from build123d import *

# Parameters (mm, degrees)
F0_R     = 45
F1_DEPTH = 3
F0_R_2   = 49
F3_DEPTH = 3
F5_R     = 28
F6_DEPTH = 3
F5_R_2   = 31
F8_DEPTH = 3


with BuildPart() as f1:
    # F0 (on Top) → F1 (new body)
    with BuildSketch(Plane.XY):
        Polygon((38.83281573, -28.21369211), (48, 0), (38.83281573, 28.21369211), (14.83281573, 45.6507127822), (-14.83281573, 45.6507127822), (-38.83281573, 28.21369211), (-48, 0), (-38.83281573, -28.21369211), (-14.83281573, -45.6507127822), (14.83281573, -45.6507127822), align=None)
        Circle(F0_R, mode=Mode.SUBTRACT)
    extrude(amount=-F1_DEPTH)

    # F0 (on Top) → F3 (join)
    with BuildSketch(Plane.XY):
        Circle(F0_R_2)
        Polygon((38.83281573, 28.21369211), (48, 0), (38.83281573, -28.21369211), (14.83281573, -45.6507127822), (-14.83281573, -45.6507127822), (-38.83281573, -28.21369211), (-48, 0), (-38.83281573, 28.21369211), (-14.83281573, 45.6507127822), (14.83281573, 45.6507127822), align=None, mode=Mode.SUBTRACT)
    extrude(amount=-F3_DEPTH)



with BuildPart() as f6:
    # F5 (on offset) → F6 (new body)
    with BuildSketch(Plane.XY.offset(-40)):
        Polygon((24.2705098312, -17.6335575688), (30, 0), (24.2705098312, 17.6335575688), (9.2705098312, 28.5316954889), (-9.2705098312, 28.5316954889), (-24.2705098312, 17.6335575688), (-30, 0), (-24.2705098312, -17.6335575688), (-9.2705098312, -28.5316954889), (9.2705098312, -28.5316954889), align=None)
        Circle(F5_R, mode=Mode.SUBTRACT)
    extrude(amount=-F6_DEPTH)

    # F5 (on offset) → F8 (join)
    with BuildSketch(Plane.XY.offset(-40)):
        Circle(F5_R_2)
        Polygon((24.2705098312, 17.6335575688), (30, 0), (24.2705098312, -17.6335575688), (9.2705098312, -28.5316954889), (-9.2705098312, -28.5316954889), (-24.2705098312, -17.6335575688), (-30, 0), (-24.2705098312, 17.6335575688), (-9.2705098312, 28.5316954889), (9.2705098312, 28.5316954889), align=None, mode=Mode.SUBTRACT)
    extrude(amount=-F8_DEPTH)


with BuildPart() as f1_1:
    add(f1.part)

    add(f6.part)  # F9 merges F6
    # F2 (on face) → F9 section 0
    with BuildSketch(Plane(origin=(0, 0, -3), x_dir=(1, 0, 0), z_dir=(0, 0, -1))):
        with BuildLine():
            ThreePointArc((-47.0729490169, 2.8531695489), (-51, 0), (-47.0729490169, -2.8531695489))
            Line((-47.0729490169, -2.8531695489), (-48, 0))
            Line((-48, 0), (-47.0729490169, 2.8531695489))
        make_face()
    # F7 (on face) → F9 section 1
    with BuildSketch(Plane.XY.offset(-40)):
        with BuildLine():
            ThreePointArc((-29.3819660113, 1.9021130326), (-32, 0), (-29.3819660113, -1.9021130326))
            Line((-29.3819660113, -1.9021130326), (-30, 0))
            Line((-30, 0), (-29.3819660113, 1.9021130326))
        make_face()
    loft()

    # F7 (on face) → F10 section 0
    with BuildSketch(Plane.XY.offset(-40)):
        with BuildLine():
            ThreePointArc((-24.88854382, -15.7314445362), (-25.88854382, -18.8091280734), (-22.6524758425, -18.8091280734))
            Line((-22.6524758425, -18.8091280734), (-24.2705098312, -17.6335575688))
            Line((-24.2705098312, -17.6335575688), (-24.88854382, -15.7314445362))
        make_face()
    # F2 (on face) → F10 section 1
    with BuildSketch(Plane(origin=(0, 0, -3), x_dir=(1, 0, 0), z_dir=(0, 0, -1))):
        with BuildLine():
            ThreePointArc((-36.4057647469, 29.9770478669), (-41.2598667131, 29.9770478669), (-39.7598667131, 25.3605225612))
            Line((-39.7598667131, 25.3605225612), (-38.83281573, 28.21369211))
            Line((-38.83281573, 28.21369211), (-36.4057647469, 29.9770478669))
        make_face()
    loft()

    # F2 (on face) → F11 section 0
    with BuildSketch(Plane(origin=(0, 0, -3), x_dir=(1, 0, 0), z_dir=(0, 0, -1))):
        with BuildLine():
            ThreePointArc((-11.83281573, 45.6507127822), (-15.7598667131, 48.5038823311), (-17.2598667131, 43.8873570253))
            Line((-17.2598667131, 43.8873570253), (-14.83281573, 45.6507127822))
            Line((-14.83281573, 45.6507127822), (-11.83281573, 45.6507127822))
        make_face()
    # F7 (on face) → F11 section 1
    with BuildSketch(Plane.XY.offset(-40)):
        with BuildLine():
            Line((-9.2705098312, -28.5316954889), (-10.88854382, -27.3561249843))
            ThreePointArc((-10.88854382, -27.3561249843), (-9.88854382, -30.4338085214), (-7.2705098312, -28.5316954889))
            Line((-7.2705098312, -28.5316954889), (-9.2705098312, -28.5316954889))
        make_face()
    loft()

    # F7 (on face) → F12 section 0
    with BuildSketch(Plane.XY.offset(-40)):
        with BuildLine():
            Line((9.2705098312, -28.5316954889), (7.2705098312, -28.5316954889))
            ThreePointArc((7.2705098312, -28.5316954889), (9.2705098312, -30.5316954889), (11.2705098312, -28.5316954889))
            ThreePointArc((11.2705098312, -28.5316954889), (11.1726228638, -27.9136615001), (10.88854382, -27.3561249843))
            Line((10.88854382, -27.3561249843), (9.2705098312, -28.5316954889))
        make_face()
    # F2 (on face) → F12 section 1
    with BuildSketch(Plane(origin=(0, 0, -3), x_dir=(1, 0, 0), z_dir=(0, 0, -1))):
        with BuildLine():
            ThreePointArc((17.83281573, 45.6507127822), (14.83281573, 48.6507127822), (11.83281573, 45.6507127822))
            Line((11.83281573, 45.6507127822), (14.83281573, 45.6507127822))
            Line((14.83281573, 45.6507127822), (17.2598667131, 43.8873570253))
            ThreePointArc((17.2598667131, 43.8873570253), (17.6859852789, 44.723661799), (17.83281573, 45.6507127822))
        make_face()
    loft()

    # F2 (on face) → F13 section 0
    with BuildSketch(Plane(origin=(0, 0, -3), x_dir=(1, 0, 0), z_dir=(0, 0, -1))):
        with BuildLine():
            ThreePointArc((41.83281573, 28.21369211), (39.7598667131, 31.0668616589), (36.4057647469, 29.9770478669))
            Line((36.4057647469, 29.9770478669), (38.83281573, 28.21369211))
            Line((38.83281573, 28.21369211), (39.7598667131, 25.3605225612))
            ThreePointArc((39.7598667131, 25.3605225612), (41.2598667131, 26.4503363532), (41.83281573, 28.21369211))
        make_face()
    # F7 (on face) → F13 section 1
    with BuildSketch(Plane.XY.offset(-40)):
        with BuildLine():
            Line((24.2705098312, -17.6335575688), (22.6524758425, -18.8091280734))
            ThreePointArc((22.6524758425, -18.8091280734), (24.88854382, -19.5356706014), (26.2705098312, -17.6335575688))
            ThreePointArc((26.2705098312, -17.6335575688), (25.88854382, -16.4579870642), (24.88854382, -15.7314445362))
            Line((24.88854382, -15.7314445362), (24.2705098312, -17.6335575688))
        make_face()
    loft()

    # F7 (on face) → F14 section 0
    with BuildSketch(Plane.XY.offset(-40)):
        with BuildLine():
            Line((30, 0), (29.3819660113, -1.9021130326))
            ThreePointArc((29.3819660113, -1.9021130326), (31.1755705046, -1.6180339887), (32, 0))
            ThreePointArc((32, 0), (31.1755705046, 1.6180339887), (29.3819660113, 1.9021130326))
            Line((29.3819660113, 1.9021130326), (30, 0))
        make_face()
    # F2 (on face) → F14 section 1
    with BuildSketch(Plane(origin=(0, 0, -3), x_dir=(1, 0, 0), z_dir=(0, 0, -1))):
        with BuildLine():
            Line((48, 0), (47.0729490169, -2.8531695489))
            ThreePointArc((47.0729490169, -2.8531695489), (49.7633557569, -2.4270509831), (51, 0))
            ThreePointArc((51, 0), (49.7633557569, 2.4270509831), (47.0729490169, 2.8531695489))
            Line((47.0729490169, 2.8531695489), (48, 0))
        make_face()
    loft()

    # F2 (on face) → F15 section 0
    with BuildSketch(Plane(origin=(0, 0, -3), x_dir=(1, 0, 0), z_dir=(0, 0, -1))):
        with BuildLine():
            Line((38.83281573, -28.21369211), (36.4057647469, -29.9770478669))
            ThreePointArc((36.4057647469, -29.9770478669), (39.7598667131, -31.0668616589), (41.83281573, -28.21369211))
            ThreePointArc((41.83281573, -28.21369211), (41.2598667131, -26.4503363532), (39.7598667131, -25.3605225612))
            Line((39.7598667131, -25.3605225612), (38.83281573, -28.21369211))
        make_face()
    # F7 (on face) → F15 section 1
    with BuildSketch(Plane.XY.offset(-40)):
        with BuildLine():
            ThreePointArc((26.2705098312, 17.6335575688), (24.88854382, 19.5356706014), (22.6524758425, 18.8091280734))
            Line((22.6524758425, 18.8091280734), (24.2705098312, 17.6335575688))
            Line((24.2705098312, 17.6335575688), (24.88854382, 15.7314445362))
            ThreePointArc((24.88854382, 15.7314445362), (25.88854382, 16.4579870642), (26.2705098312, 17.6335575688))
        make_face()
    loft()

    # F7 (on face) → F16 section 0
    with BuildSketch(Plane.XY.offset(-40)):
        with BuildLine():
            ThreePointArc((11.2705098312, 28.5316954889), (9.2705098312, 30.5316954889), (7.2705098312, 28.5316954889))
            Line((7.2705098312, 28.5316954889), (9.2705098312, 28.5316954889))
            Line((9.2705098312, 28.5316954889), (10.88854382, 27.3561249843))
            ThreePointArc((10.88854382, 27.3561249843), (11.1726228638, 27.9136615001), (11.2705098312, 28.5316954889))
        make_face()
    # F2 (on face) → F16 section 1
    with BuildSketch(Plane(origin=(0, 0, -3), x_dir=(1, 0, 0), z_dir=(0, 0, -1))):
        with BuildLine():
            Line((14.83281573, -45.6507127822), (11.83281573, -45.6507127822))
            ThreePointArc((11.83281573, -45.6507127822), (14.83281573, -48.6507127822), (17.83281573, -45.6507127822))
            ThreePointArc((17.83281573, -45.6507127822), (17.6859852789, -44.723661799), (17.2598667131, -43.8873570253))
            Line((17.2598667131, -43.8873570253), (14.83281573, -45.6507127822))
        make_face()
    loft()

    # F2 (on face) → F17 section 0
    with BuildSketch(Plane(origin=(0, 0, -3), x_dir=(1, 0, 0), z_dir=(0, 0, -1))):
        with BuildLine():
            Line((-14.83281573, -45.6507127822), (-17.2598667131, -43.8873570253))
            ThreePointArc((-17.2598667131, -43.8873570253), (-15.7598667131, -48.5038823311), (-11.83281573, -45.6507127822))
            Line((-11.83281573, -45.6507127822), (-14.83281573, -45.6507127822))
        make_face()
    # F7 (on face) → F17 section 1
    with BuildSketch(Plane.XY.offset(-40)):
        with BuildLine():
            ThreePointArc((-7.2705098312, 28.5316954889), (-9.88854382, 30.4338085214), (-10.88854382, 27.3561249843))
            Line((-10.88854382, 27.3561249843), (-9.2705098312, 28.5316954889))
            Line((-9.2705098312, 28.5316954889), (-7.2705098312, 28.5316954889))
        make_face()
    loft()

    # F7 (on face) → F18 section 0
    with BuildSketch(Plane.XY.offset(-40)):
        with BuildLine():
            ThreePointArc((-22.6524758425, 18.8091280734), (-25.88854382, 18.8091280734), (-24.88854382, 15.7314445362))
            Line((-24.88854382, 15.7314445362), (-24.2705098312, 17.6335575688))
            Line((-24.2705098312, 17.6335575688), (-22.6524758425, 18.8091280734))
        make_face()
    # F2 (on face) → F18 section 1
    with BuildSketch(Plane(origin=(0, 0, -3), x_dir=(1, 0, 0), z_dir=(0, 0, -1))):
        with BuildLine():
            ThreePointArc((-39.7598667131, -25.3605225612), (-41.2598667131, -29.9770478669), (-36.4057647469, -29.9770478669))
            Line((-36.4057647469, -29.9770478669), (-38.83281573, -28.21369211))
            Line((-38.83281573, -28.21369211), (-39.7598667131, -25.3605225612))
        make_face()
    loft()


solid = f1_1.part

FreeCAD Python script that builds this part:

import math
import FreeCAD as App
import Part
import Sketcher

V = App.Vector
Q = App.Units.Quantity

doc = App.newDocument("Part")
body = doc.addObject("PartDesign::Body", "Body")

# Sketch on XY plane
sketch1 = doc.addObject("Sketcher::SketchObject", "Sketch")
body.addObject(sketch1)
sketch1.AttachmentSupport = (doc.XY_Plane, [""])
sketch1.MapMode = "FlatFace"
sketch1.addGeometry([
    Part.LineSegment(V(39, -28, 0), V(48, 0, 0)),  # 0
    Part.LineSegment(V(48, 0, 0), V(39, 28, 0)),  # 1
    Part.LineSegment(V(39, 28, 0), V(15, 46, 0)),  # 2
    Part.LineSegment(V(15, 46, 0), V(-15, 46, 0)),  # 3
    Part.LineSegment(V(-15, 46, 0), V(-39, 28, 0)),  # 4
    Part.LineSegment(V(-39, 28, 0), V(-48, 0, 0)),  # 5
    Part.LineSegment(V(-48, 0, 0), V(-39, -28, 0)),  # 6
    Part.LineSegment(V(-39, -28, 0), V(-15, -46, 0)),  # 7
    Part.LineSegment(V(-15, -46, 0), V(15, -46, 0)),  # 8
    Part.LineSegment(V(15, -46, 0), V(39, -28, 0)),  # 9
    Part.Circle(V(0, 0, 0), V(0, 0, 1), 45),  # 10
], False)
sketch1.addConstraint([
    Sketcher.Constraint("Coincident", 0, 2, 1, 1),
    Sketcher.Constraint("Coincident", 1, 2, 2, 1),
    Sketcher.Constraint("Coincident", 2, 2, 3, 1),
    Sketcher.Constraint("Coincident", 3, 2, 4, 1),
    Sketcher.Constraint("Coincident", 4, 2, 5, 1),
    Sketcher.Constraint("Coincident", 5, 2, 6, 1),
    Sketcher.Constraint("Coincident", 6, 2, 7, 1),
    Sketcher.Constraint("Coincident", 7, 2, 8, 1),
    Sketcher.Constraint("Coincident", 8, 2, 9, 1),
    Sketcher.Constraint("Coincident", 9, 2, 0, 1),
    Sketcher.Constraint("Horizontal", 3),
    Sketcher.Constraint("Horizontal", 8),
    Sketcher.Constraint("Coincident", 10, 3, -1, 1),
    Sketcher.Constraint("Symmetric", 0, 2, 5, 2, -1, 1),
    Sketcher.Constraint("Symmetric", 1, 2, 6, 2, -1, 1),
    Sketcher.Constraint("Symmetric", 2, 2, 7, 2, -1, 1),
    Sketcher.Constraint("Symmetric", 4, 2, 9, 2, -1, 1),
    Sketcher.Constraint("Symmetric", 1, 2, 4, 2, -2),
    Sketcher.Constraint("PointOnObject", 0, 2, -1),
    Sketcher.Constraint("Parallel", 4, 9),
    Sketcher.Constraint("Vertical", 3, 2, 7, 2),
    Sketcher.Constraint("Equal", 1, 2),
    Sketcher.Constraint("Diameter", 10, Q("90 mm")),
    Sketcher.Constraint("Angle", 0, Q("72 deg")),
    Sketcher.Constraint("Angle", 2, Q("144 deg")),
    Sketcher.Constraint("DistanceX", -1, 1, 0, 2, Q("48 mm")),
    Sketcher.Constraint("DistanceX", 2, 2, 1, 2, Q("24 mm")),
])
pad1 = doc.addObject("PartDesign::Pad", "Pad")
body.addObject(pad1)
pad1.Profile = sketch1
pad1.Length = 3
pad1.Reversed = True

# Sketch on XY plane
sketch2 = doc.addObject("Sketcher::SketchObject", "Sketch001")
body.addObject(sketch2)
sketch2.AttachmentSupport = (doc.XY_Plane, [""])
sketch2.MapMode = "FlatFace"
sketch2.addGeometry([
    Part.Circle(V(0, 0, 0), V(0, 0, 1), 49),  # 0
    Part.LineSegment(V(15, 46, 0), V(39, 28, 0)),  # 1
    Part.LineSegment(V(39, 28, 0), V(48, 0, 0)),  # 2
    Part.LineSegment(V(48, 0, 0), V(39, -28, 0)),  # 3
    Part.LineSegment(V(39, -28, 0), V(15, -46, 0)),  # 4
    Part.LineSegment(V(15, -46, 0), V(-15, -46, 0)),  # 5
    Part.LineSegment(V(-15, -46, 0), V(-39, -28, 0)),  # 6
    Part.LineSegment(V(-39, -28, 0), V(-48, 0, 0)),  # 7
    Part.LineSegment(V(-48, 0, 0), V(-39, 28, 0)),  # 8
    Part.LineSegment(V(-39, 28, 0), V(-15, 46, 0)),  # 9
    Part.LineSegment(V(-15, 46, 0), V(15, 46, 0)),  # 10
], False)
sketch2.addConstraint([
    Sketcher.Constraint("Coincident", 1, 2, 2, 1),
    Sketcher.Constraint("Coincident", 2, 2, 3, 1),
    Sketcher.Constraint("Coincident", 3, 2, 4, 1),
    Sketcher.Constraint("Coincident", 4, 2, 5, 1),
    Sketcher.Constraint("Coincident", 5, 2, 6, 1),
    Sketcher.Constraint("Coincident", 6, 2, 7, 1),
    Sketcher.Constraint("Coincident", 7, 2, 8, 1),
    Sketcher.Constraint("Coincident", 8, 2, 9, 1),
    Sketcher.Constraint("Coincident", 9, 2, 10, 1),
    Sketcher.Constraint("Coincident", 10, 2, 1, 1),
    Sketcher.Constraint("Horizontal", 5),
    Sketcher.Constraint("Horizontal", 10),
    Sketcher.Constraint("Coincident", 0, 3, -1, 1),
    Sketcher.Constraint("Symmetric", 1, 2, 6, 2, -1, 1),
    Sketcher.Constraint("Symmetric", 2, 2, 7, 2, -1, 1),
    Sketcher.Constraint("Symmetric", 3, 2, 8, 2, -1, 1),
    Sketcher.Constraint("Symmetric", 4, 2, 9, 2, -1, 1),
    Sketcher.Constraint("Symmetric", 3, 2, 6, 2, -2),
    Sketcher.Constraint("PointOnObject", 2, 2, -1),
    Sketcher.Constraint("Parallel", 1, 6),
    Sketcher.Constraint("Vertical", 5, 2, 9, 2),
    Sketcher.Constraint("Equal", 1, 2),
    Sketcher.Constraint("Diameter", 0, Q("98 mm")),
    Sketcher.Constraint("Angle", 1, Q("-36 deg")),
    Sketcher.Constraint("Angle", 2, Q("-72 deg")),
    Sketcher.Constraint("DistanceX", -1, 1, 2, 2, Q("48 mm")),
    Sketcher.Constraint("DistanceX", 4, 2, 3, 2, Q("24 mm")),
])
pad2 = doc.addObject("PartDesign::Pad", "Pad001")
body.addObject(pad2)
pad2.Profile = sketch2
pad2.Length = 3
pad2.Reversed = True
body2 = doc.addObject("PartDesign::Body", "Body001")

# Sketch on XY plane
sketch3 = doc.addObject("Sketcher::SketchObject", "Sketch002")
body2.addObject(sketch3)
sketch3.AttachmentSupport = (doc.getObject("XY_Plane001"), [""])
sketch3.MapMode = "FlatFace"
sketch3.AttachmentOffset = App.Placement(V(0, 0, -40), App.Rotation())
sketch3.addGeometry([
    Part.LineSegment(V(24, -18, 0), V(30, 0, 0)),  # 0
    Part.LineSegment(V(30, 0, 0), V(24, 18, 0)),  # 1
    Part.LineSegment(V(24, 18, 0), V(9, 29, 0)),  # 2
    Part.LineSegment(V(9, 29, 0), V(-9, 29, 0)),  # 3
    Part.LineSegment(V(-9, 29, 0), V(-24, 18, 0)),  # 4
    Part.LineSegment(V(-24, 18, 0), V(-30, 0, 0)),  # 5
    Part.LineSegment(V(-30, 0, 0), V(-24, -18, 0)),  # 6
    Part.LineSegment(V(-24, -18, 0), V(-9, -29, 0)),  # 7
    Part.LineSegment(V(-9, -29, 0), V(9, -29, 0)),  # 8
    Part.LineSegment(V(9, -29, 0), V(24, -18, 0)),  # 9
    Part.Circle(V(0, 0, 0), V(0, 0, 1), 28),  # 10
], False)
sketch3.addConstraint([
    Sketcher.Constraint("Coincident", 0, 2, 1, 1),
    Sketcher.Constraint("Coincident", 1, 2, 2, 1),
    Sketcher.Constraint("Coincident", 2, 2, 3, 1),
    Sketcher.Constraint("Coincident", 3, 2, 4, 1),
    Sketcher.Constraint("Coincident", 4, 2, 5, 1),
    Sketcher.Constraint("Coincident", 5, 2, 6, 1),
    Sketcher.Constraint("Coincident", 6, 2, 7, 1),
    Sketcher.Constraint("Coincident", 7, 2, 8, 1),
    Sketcher.Constraint("Coincident", 8, 2, 9, 1),
    Sketcher.Constraint("Coincident", 9, 2, 0, 1),
    Sketcher.Constraint("Horizontal", 3),
    Sketcher.Constraint("Horizontal", 8),
    Sketcher.Constraint("Coincident", 10, 3, -1, 1),
    Sketcher.Constraint("Symmetric", 0, 2, 5, 2, -1, 1),
    Sketcher.Constraint("Symmetric", 1, 2, 6, 2, -1, 1),
    Sketcher.Constraint("Symmetric", 2, 2, 7, 2, -1, 1),
    Sketcher.Constraint("Symmetric", 4, 2, 9, 2, -1, 1),
    Sketcher.Constraint("Symmetric", 1, 2, 4, 2, -2),
    Sketcher.Constraint("PointOnObject", 0, 2, -1),
    Sketcher.Constraint("Parallel", 4, 9),
    Sketcher.Constraint("Vertical", 3, 2, 7, 2),
    Sketcher.Constraint("Equal", 1, 2),
    Sketcher.Constraint("Diameter", 10, Q("56 mm")),
    Sketcher.Constraint("Angle", 0, Q("72 deg")),
    Sketcher.Constraint("Angle", 2, Q("144 deg")),
    Sketcher.Constraint("DistanceX", -1, 1, 0, 2, Q("30 mm")),
    Sketcher.Constraint("DistanceX", 2, 2, 1, 2, Q("15 mm")),
])
pad3 = doc.addObject("PartDesign::Pad", "Pad002")
body2.addObject(pad3)
pad3.Profile = sketch3
pad3.Length = 3
pad3.Reversed = True

# Sketch on XY plane
sketch4 = doc.addObject("Sketcher::SketchObject", "Sketch003")
body2.addObject(sketch4)
sketch4.AttachmentSupport = (doc.getObject("XY_Plane001"), [""])
sketch4.MapMode = "FlatFace"
sketch4.AttachmentOffset = App.Placement(V(0, 0, -40), App.Rotation())
sketch4.addGeometry([
    Part.Circle(V(0, 0, 0), V(0, 0, 1), 31),  # 0
    Part.LineSegment(V(9, 29, 0), V(24, 18, 0)),  # 1
    Part.LineSegment(V(24, 18, 0), V(30, 0, 0)),  # 2
    Part.LineSegment(V(30, 0, 0), V(24, -18, 0)),  # 3
    Part.LineSegment(V(24, -18, 0), V(9, -29, 0)),  # 4
    Part.LineSegment(V(9, -29, 0), V(-9, -29, 0)),  # 5
    Part.LineSegment(V(-9, -29, 0), V(-24, -18, 0)),  # 6
    Part.LineSegment(V(-24, -18, 0), V(-30, 0, 0)),  # 7
    Part.LineSegment(V(-30, 0, 0), V(-24, 18, 0)),  # 8
    Part.LineSegment(V(-24, 18, 0), V(-9, 29, 0)),  # 9
    Part.LineSegment(V(-9, 29, 0), V(9, 29, 0)),  # 10
], False)
sketch4.addConstraint([
    Sketcher.Constraint("Coincident", 1, 2, 2, 1),
    Sketcher.Constraint("Coincident", 2, 2, 3, 1),
    Sketcher.Constraint("Coincident", 3, 2, 4, 1),
    Sketcher.Constraint("Coincident", 4, 2, 5, 1),
    Sketcher.Constraint("Coincident", 5, 2, 6, 1),
    Sketcher.Constraint("Coincident", 6, 2, 7, 1),
    Sketcher.Constraint("Coincident", 7, 2, 8, 1),
    Sketcher.Constraint("Coincident", 8, 2, 9, 1),
    Sketcher.Constraint("Coincident", 9, 2, 10, 1),
    Sketcher.Constraint("Coincident", 10, 2, 1, 1),
    Sketcher.Constraint("Horizontal", 5),
    Sketcher.Constraint("Horizontal", 10),
    Sketcher.Constraint("Coincident", 0, 3, -1, 1),
    Sketcher.Constraint("Symmetric", 1, 2, 6, 2, -1, 1),
    Sketcher.Constraint("Symmetric", 2, 2, 7, 2, -1, 1),
    Sketcher.Constraint("Symmetric", 3, 2, 8, 2, -1, 1),
    Sketcher.Constraint("Symmetric", 4, 2, 9, 2, -1, 1),
    Sketcher.Constraint("Symmetric", 3, 2, 6, 2, -2),
    Sketcher.Constraint("PointOnObject", 2, 2, -1),
    Sketcher.Constraint("Parallel", 1, 6),
    Sketcher.Constraint("Vertical", 5, 2, 9, 2),
    Sketcher.Constraint("Equal", 1, 2),
    Sketcher.Constraint("Diameter", 0, Q("62 mm")),
    Sketcher.Constraint("Angle", 1, Q("-36 deg")),
    Sketcher.Constraint("Angle", 2, Q("-72 deg")),
    Sketcher.Constraint("DistanceX", -1, 1, 2, 2, Q("30 mm")),
    Sketcher.Constraint("DistanceX", 4, 2, 3, 2, Q("15 mm")),
])
pad4 = doc.addObject("PartDesign::Pad", "Pad003")
body2.addObject(pad4)
pad4.Profile = sketch4
pad4.Length = 3
pad4.Reversed = True
body.AllowCompound = True
doc.recompute()

boolean = doc.addObject("PartDesign::Boolean", "Boolean")
body.addObject(boolean)
boolean.Type = "Fuse"
boolean.addObjects([body2])

# Sketch on XY plane
sketch5 = doc.addObject("Sketcher::SketchObject", "Sketch004")
body.addObject(sketch5)
sketch5.AttachmentSupport = (doc.XY_Plane, [""])
sketch5.MapMode = "FlatFace"
sketch5.AttachmentOffset = App.Placement(V(0, 0, -3), App.Rotation())
sketch5.addGeometry([
    Part.ArcOfCircle(Part.Circle(V(-48, 0, 0), V(0, 0, 1), 3), math.radians(72), math.radians(288)),
    Part.LineSegment(V(-47.1, 2.9, 0), V(-48, 0, 0)),
    Part.LineSegment(V(-48, 0, 0), V(-47.1, -2.9, 0)),
], False)
sketch5.addConstraint([
    Sketcher.Constraint("Coincident", 0, 1, 1, 1),
    Sketcher.Constraint("Coincident", 1, 2, 2, 1),
    Sketcher.Constraint("Coincident", 2, 2, 0, 2),
    Sketcher.Constraint("Coincident", 1, 2, 0, 3),
    Sketcher.Constraint("Symmetric", 0, 1, 2, 2, -1),
    Sketcher.Constraint("Radius", 0, Q("3 mm")),
    Sketcher.Constraint("Angle", 1, Q("-108 deg")),
    Sketcher.Constraint("DistanceX", 0, 3, -1, 1, Q("48 mm")),
])

# Sketch on XY plane
sketch6 = doc.addObject("Sketcher::SketchObject", "Sketch005")
body.addObject(sketch6)
sketch6.AttachmentSupport = (doc.XY_Plane, [""])
sketch6.MapMode = "FlatFace"
sketch6.AttachmentOffset = App.Placement(V(0, 0, -40), App.Rotation())
sketch6.addGeometry([
    Part.ArcOfCircle(Part.Circle(V(-30, 0, 0), V(0, 0, 1), 2), math.radians(72), math.radians(288)),
    Part.LineSegment(V(-29.4, -1.9, 0), V(-30, 0, 0)),
    Part.LineSegment(V(-30, 0, 0), V(-29.4, 1.9, 0)),
], False)
sketch6.addConstraint([
    Sketcher.Constraint("Coincident", 0, 2, 1, 1),
    Sketcher.Constraint("Coincident", 1, 2, 2, 1),
    Sketcher.Constraint("Coincident", 2, 2, 0, 1),
    Sketcher.Constraint("Coincident", 1, 2, 0, 3),
    Sketcher.Constraint("Symmetric", 0, 2, 2, 2, -1),
    Sketcher.Constraint("Radius", 0, Q("2 mm")),
    Sketcher.Constraint("Angle", 1, Q("108 deg")),
    Sketcher.Constraint("DistanceX", 0, 3, -1, 1, Q("30 mm")),
])

additiveloft = doc.addObject("PartDesign::AdditiveLoft", "AdditiveLoft")
body.addObject(additiveloft)
additiveloft.Profile = sketch5
additiveloft.Sections = [sketch6]

# Sketch on XY plane
sketch7 = doc.addObject("Sketcher::SketchObject", "Sketch006")
body.addObject(sketch7)
sketch7.AttachmentSupport = (doc.XY_Plane, [""])
sketch7.MapMode = "FlatFace"
sketch7.AttachmentOffset = App.Placement(V(0, 0, -40), App.Rotation())
sketch7.addGeometry([
    Part.ArcOfCircle(Part.Circle(V(-24.3, -17.6, 0), V(0, 0, 1), 2), math.radians(108), math.radians(324)),
    Part.LineSegment(V(-22.7, -18.8, 0), V(-24.3, -17.6, 0)),
    Part.LineSegment(V(-24.3, -17.6, 0), V(-24.9, -15.7, 0)),
], False)
sketch7.addConstraint([
    Sketcher.Constraint("Coincident", 0, 2, 1, 1),
    Sketcher.Constraint("Coincident", 1, 2, 2, 1),
    Sketcher.Constraint("Coincident", 2, 2, 0, 1),
    Sketcher.Constraint("Coincident", 1, 2, 0, 3),
    Sketcher.Constraint("Radius", 0, Q("2 mm")),
    Sketcher.Constraint("Angle", 1, Q("144 deg")),
    Sketcher.Constraint("Angle", 2, Q("108 deg")),
    Sketcher.Constraint("DistanceX", 0, 3, -1, 1, Q("24.27051 mm")),
    Sketcher.Constraint("DistanceY", 0, 2, -1, 1, Q("18.809128 mm")),
])

# Sketch on XY plane
sketch8 = doc.addObject("Sketcher::SketchObject", "Sketch007")
body.addObject(sketch8)
sketch8.AttachmentSupport = (doc.XY_Plane, [""])
sketch8.MapMode = "FlatFace"
sketch8.AttachmentOffset = App.Placement(V(0, 0, -3), App.Rotation())
sketch8.addGeometry([
    Part.ArcOfCircle(Part.Circle(V(-38.8, -28.2, 0), V(0, 0, 1), 3), math.radians(108), math.radians(324)),
    Part.LineSegment(V(-39.8, -25.4, 0), V(-38.8, -28.2, 0)),
    Part.LineSegment(V(-38.8, -28.2, 0), V(-36.4, -30, 0)),
], False)
sketch8.addConstraint([
    Sketcher.Constraint("Coincident", 0, 1, 1, 1),
    Sketcher.Constraint("Coincident", 1, 2, 2, 1),
    Sketcher.Constraint("Coincident", 2, 2, 0, 2),
    Sketcher.Constraint("Coincident", 1, 2, 0, 3),
    Sketcher.Constraint("Radius", 0, Q("3 mm")),
    Sketcher.Constraint("Angle", 1, Q("-72 deg")),
    Sketcher.Constraint("Angle", 2, Q("-36 deg")),
    Sketcher.Constraint("DistanceX", 0, 3, -1, 1, Q("38.832816 mm")),
    Sketcher.Constraint("DistanceY", 0, 3, -1, 1, Q("28.213692 mm")),
])

additiveloft2 = doc.addObject("PartDesign::AdditiveLoft", "AdditiveLoft001")
body.addObject(additiveloft2)
additiveloft2.Profile = sketch7
additiveloft2.Sections = [sketch8]

# Sketch on XY plane
sketch9 = doc.addObject("Sketcher::SketchObject", "Sketch008")
body.addObject(sketch9)
sketch9.AttachmentSupport = (doc.XY_Plane, [""])
sketch9.MapMode = "FlatFace"
sketch9.AttachmentOffset = App.Placement(V(0, 0, -3), App.Rotation())
sketch9.addGeometry([
    Part.ArcOfCircle(Part.Circle(V(-14.8, -45.7, 0), V(0, 0, 1), 3), math.radians(144), math.radians(360)),
    Part.LineSegment(V(-17.3, -43.9, 0), V(-14.8, -45.7, 0)),
    Part.LineSegment(V(-14.8, -45.7, 0), V(-11.8, -45.7, 0)),
], False)
sketch9.addConstraint([
    Sketcher.Constraint("Coincident", 0, 1, 1, 1),
    Sketcher.Constraint("Coincident", 1, 2, 2, 1),
    Sketcher.Constraint("Coincident", 2, 2, 0, 2),
    Sketcher.Constraint("Horizontal", 2),
    Sketcher.Constraint("Coincident", 1, 2, 0, 3),
    Sketcher.Constraint("Radius", 0, Q("3 mm")),
    Sketcher.Constraint("Angle", 1, Q("-36 deg")),
    Sketcher.Constraint("DistanceX", 0, 3, -1, 1, Q("14.832816 mm")),
    Sketcher.Constraint("DistanceY", 0, 3, -1, 1, Q("45.650713 mm")),
])

# Sketch on XY plane
sketch10 = doc.addObject("Sketcher::SketchObject", "Sketch009")
body.addObject(sketch10)
sketch10.AttachmentSupport = (doc.XY_Plane, [""])
sketch10.MapMode = "FlatFace"
sketch10.AttachmentOffset = App.Placement(V(0, 0, -40), App.Rotation())
sketch10.addGeometry([
    Part.LineSegment(V(-9.3, -28.5, 0), V(-10.9, -27.4, 0)),
    Part.ArcOfCircle(Part.Circle(V(-9.3, -28.5, 0), V(0, 0, 1), 2), math.radians(144), math.radians(360)),
    Part.LineSegment(V(-7.3, -28.5, 0), V(-9.3, -28.5, 0)),
], False)
sketch10.addConstraint([
    Sketcher.Constraint("Coincident", 0, 2, 1, 1),
    Sketcher.Constraint("Coincident", 1, 2, 2, 1),
    Sketcher.Constraint("Coincident", 2, 2, 0, 1),
    Sketcher.Constraint("Horizontal", 2),
    Sketcher.Constraint("Coincident", 2, 2, 1, 3),
    Sketcher.Constraint("Radius", 1, Q("2 mm")),
    Sketcher.Constraint("Angle", 0, Q("144 deg")),
    Sketcher.Constraint("DistanceX", 1, 3, -1, 1, Q("9.27051 mm")),
    Sketcher.Constraint("DistanceY", 1, 3, -1, 1, Q("28.531695 mm")),
])

additiveloft3 = doc.addObject("PartDesign::AdditiveLoft", "AdditiveLoft002")
body.addObject(additiveloft3)
additiveloft3.Profile = sketch9
additiveloft3.Sections = [sketch10]

# Sketch on XY plane
sketch11 = doc.addObject("Sketcher::SketchObject", "Sketch010")
body.addObject(sketch11)
sketch11.AttachmentSupport = (doc.XY_Plane, [""])
sketch11.MapMode = "FlatFace"
sketch11.AttachmentOffset = App.Placement(V(0, 0, -40), App.Rotation())
sketch11.addGeometry([
    Part.LineSegment(V(9.3, -28.5, 0), V(7.3, -28.5, 0)),
    Part.ArcOfCircle(Part.Circle(V(9.3, -28.5, 0), V(0, 0, 1), 2), math.radians(180), math.radians(360)),
    Part.ArcOfCircle(Part.Circle(V(9.3, -28.5, 0), V(0, 0, 1), 2), math.radians(0), math.radians(36)),
    Part.LineSegment(V(10.9, -27.4, 0), V(9.3, -28.5, 0)),
], False)
sketch11.addConstraint([
    Sketcher.Constraint("Coincident", 0, 2, 1, 1),
    Sketcher.Constraint("Tangent", 1, 2, 2, 1),
    Sketcher.Constraint("Coincident", 2, 2, 3, 1),
    Sketcher.Constraint("Coincident", 3, 2, 0, 1),
    Sketcher.Constraint("Horizontal", 0),
    Sketcher.Constraint("Coincident", 3, 2, 1, 3),
    Sketcher.Constraint("Equal", 1, 2),
    Sketcher.Constraint("Horizontal", 0, 2, 1, 2),
    Sketcher.Constraint("Radius", 1, Q("2 mm")),
    Sketcher.Constraint("Angle", 3, Q("-144 deg")),
    Sketcher.Constraint("DistanceX", -1, 1, 1, 3, Q("9.27051 mm")),
    Sketcher.Constraint("DistanceY", 1, 3, -1, 1, Q("28.531695 mm")),
])

# Sketch on XY plane
sketch12 = doc.addObject("Sketcher::SketchObject", "Sketch011")
body.addObject(sketch12)
sketch12.AttachmentSupport = (doc.XY_Plane, [""])
sketch12.MapMode = "FlatFace"
sketch12.AttachmentOffset = App.Placement(V(0, 0, -3), App.Rotation())
sketch12.addGeometry([
    Part.ArcOfCircle(Part.Circle(V(14.8, -45.7, 0), V(0, 0, 1), 3), math.radians(180), math.radians(360)),
    Part.LineSegment(V(11.8, -45.7, 0), V(14.8, -45.7, 0)),
    Part.LineSegment(V(14.8, -45.7, 0), V(17.3, -43.9, 0)),
    Part.ArcOfCircle(Part.Circle(V(14.8, -45.7, 0), V(0, 0, 1), 3), math.radians(0), math.radians(36)),
], False)
sketch12.addConstraint([
    Sketcher.Constraint("Coincident", 0, 1, 1, 1),
    Sketcher.Constraint("Coincident", 1, 2, 2, 1),
    Sketcher.Constraint("Coincident", 2, 2, 3, 2),
    Sketcher.Constraint("Tangent", 3, 1, 0, 2),
    Sketcher.Constraint("Horizontal", 1),
    Sketcher.Constraint("Coincident", 1, 2, 0, 3),
    Sketcher.Constraint("Equal", 0, 3),
    Sketcher.Constraint("Horizontal", 1, 2, 3, 1),
    Sketcher.Constraint("Radius", 0, Q("3 mm")),
    Sketcher.Constraint("Angle", 2, Q("36 deg")),
    Sketcher.Constraint("DistanceX", -1, 1, 0, 3, Q("14.832816 mm")),
    Sketcher.Constraint("DistanceY", 0, 3, -1, 1, Q("45.650713 mm")),
])

additiveloft4 = doc.addObject("PartDesign::AdditiveLoft", "AdditiveLoft003")
body.addObject(additiveloft4)
additiveloft4.Profile = sketch11
additiveloft4.Sections = [sketch12]

# Sketch on XY plane
sketch13 = doc.addObject("Sketcher::SketchObject", "Sketch012")
body.addObject(sketch13)
sketch13.AttachmentSupport = (doc.XY_Plane, [""])
sketch13.MapMode = "FlatFace"
sketch13.AttachmentOffset = App.Placement(V(0, 0, -3), App.Rotation())
sketch13.addGeometry([
    Part.ArcOfCircle(Part.Circle(V(38.8, -28.2, 0), V(0, 0, 1), 3), math.radians(-144), math.radians(0)),
    Part.LineSegment(V(36.4, -30, 0), V(38.8, -28.2, 0)),
    Part.LineSegment(V(38.8, -28.2, 0), V(39.8, -25.4, 0)),
    Part.ArcOfCircle(Part.Circle(V(38.8, -28.2, 0), V(0, 0, 1), 3), math.radians(0), math.radians(72)),
], False)
sketch13.addConstraint([
    Sketcher.Constraint("Coincident", 0, 1, 1, 1),
    Sketcher.Constraint("Coincident", 1, 2, 2, 1),
    Sketcher.Constraint("Coincident", 2, 2, 3, 2),
    Sketcher.Constraint("Tangent", 3, 1, 0, 2),
    Sketcher.Constraint("Coincident", 1, 2, 0, 3),
    Sketcher.Constraint("Equal", 0, 3),
    Sketcher.Constraint("Horizontal", 1, 2, 3, 1),
    Sketcher.Constraint("Radius", 0, Q("3 mm")),
    Sketcher.Constraint("Angle", 1, Q("36 deg")),
    Sketcher.Constraint("Angle", 2, Q("72 deg")),
    Sketcher.Constraint("DistanceX", -1, 1, 0, 3, Q("38.832816 mm")),
    Sketcher.Constraint("DistanceY", 0, 3, -1, 1, Q("28.213692 mm")),
])

# Sketch on XY plane
sketch14 = doc.addObject("Sketcher::SketchObject", "Sketch013")
body.addObject(sketch14)
sketch14.AttachmentSupport = (doc.XY_Plane, [""])
sketch14.MapMode = "FlatFace"
sketch14.AttachmentOffset = App.Placement(V(0, 0, -40), App.Rotation())
sketch14.addGeometry([
    Part.LineSegment(V(24.3, -17.6, 0), V(22.7, -18.8, 0)),
    Part.ArcOfCircle(Part.Circle(V(24.3, -17.6, 0), V(0, 0, 1), 2), math.radians(-144), math.radians(0)),
    Part.ArcOfCircle(Part.Circle(V(24.3, -17.6, 0), V(0, 0, 1), 2), math.radians(0), math.radians(72)),
    Part.LineSegment(V(24.9, -15.7, 0), V(24.3, -17.6, 0)),
], False)
sketch14.addConstraint([
    Sketcher.Constraint("Coincident", 0, 2, 1, 1),
    Sketcher.Constraint("Tangent", 1, 2, 2, 1),
    Sketcher.Constraint("Coincident", 2, 2, 3, 1),
    Sketcher.Constraint("Coincident", 3, 2, 0, 1),
    Sketcher.Constraint("Coincident", 3, 2, 1, 3),
    Sketcher.Constraint("Equal", 1, 2),
    Sketcher.Constraint("Horizontal", 2, 3, 1, 2),
    Sketcher.Constraint("Radius", 1, Q("2 mm")),
    Sketcher.Constraint("Angle", 0, Q("-144 deg")),
    Sketcher.Constraint("Angle", 3, Q("-108 deg")),
    Sketcher.Constraint("DistanceX", -1, 1, 1, 3, Q("24.27051 mm")),
    Sketcher.Constraint("DistanceY", 0, 2, -1, 1, Q("18.809128 mm")),
])

additiveloft5 = doc.addObject("PartDesign::AdditiveLoft", "AdditiveLoft004")
body.addObject(additiveloft5)
additiveloft5.Profile = sketch13
additiveloft5.Sections = [sketch14]

# Sketch on XY plane
sketch15 = doc.addObject("Sketcher::SketchObject", "Sketch014")
body.addObject(sketch15)
sketch15.AttachmentSupport = (doc.XY_Plane, [""])
sketch15.MapMode = "FlatFace"
sketch15.AttachmentOffset = App.Placement(V(0, 0, -40), App.Rotation())
sketch15.addGeometry([
    Part.LineSegment(V(30, 0, 0), V(29.4, -1.9, 0)),
    Part.ArcOfCircle(Part.Circle(V(30, 0, 0), V(0, 0, 1), 2), math.radians(-108), math.radians(0)),
    Part.ArcOfCircle(Part.Circle(V(30, 0, 0), V(0, 0, 1), 2), math.radians(0), math.radians(108)),
    Part.LineSegment(V(29.4, 1.9, 0), V(30, 0, 0)),
], False)
sketch15.addConstraint([
    Sketcher.Constraint("Coincident", 0, 2, 1, 1),
    Sketcher.Constraint("Tangent", 1, 2, 2, 1),
    Sketcher.Constraint("Coincident", 2, 2, 3, 1),
    Sketcher.Constraint("Coincident", 3, 2, 0, 1),
    Sketcher.Constraint("Coincident", 3, 2, 1, 3),
    Sketcher.Constraint("Equal", 1, 2),
    Sketcher.Constraint("Symmetric", 0, 2, 2, 2, -1),
    Sketcher.Constraint("PointOnObject", 1, 2, -1),
    Sketcher.Constraint("Radius", 1, Q("2 mm")),
    Sketcher.Constraint("Angle", 0, Q("-108 deg")),
    Sketcher.Constraint("DistanceX", -1, 1, 1, 3, Q("30 mm")),
])

# Sketch on XY plane
sketch16 = doc.addObject("Sketcher::SketchObject", "Sketch015")
body.addObject(sketch16)
sketch16.AttachmentSupport = (doc.XY_Plane, [""])
sketch16.MapMode = "FlatFace"
sketch16.AttachmentOffset = App.Placement(V(0, 0, -3), App.Rotation())
sketch16.addGeometry([
    Part.LineSegment(V(48, 0, 0), V(47.1, 2.9, 0)),
    Part.ArcOfCircle(Part.Circle(V(48, 0, 0), V(0, 0, 1), 3), math.radians(0), math.radians(108)),
    Part.ArcOfCircle(Part.Circle(V(48, 0, 0), V(0, 0, 1), 3), math.radians(-108), math.radians(0)),
    Part.LineSegment(V(47.1, -2.9, 0), V(48, 0, 0)),
], False)
sketch16.addConstraint([
    Sketcher.Constraint("Coincident", 0, 2, 1, 2),
    Sketcher.Constraint("Tangent", 1, 1, 2, 2),
    Sketcher.Constraint("Coincident", 2, 1, 3, 1),
    Sketcher.Constraint("Coincident", 3, 2, 0, 1),
    Sketcher.Constraint("Coincident", 3, 2, 1, 3),
    Sketcher.Constraint("Equal", 1, 2),
    Sketcher.Constraint("Symmetric", 0, 2, 2, 1, -1),
    Sketcher.Constraint("PointOnObject", 1, 1, -1),
    Sketcher.Constraint("Radius", 1, Q("3 mm")),
    Sketcher.Constraint("Angle", 0, Q("108 deg")),
    Sketcher.Constraint("DistanceX", -1, 1, 1, 3, Q("48 mm")),
])

additiveloft6 = doc.addObject("PartDesign::AdditiveLoft", "AdditiveLoft005")
body.addObject(additiveloft6)
additiveloft6.Profile = sketch15
additiveloft6.Sections = [sketch16]

# Sketch on XY plane
sketch17 = doc.addObject("Sketcher::SketchObject", "Sketch016")
body.addObject(sketch17)
sketch17.AttachmentSupport = (doc.XY_Plane, [""])
sketch17.MapMode = "FlatFace"
sketch17.AttachmentOffset = App.Placement(V(0, 0, -3), App.Rotation())
sketch17.addGeometry([
    Part.LineSegment(V(38.8, 28.2, 0), V(36.4, 30, 0)),
    Part.ArcOfCircle(Part.Circle(V(38.8, 28.2, 0), V(0, 0, 1), 3), math.radians(0), math.radians(144)),
    Part.ArcOfCircle(Part.Circle(V(38.8, 28.2, 0), V(0, 0, 1), 3), math.radians(-72), math.radians(0)),
    Part.LineSegment(V(39.8, 25.4, 0), V(38.8, 28.2, 0)),
], False)
sketch17.addConstraint([
    Sketcher.Constraint("Coincident", 0, 2, 1, 2),
    Sketcher.Constraint("Tangent", 1, 1, 2, 2),
    Sketcher.Constraint("Coincident", 2, 1, 3, 1),
    Sketcher.Constraint("Coincident", 3, 2, 0, 1),
    Sketcher.Constraint("Coincident", 3, 2, 1, 3),
    Sketcher.Constraint("Equal", 1, 2),
    Sketcher.Constraint("Horizontal", 2, 3, 1, 1),
    Sketcher.Constraint("Radius", 1, Q("3 mm")),
    Sketcher.Constraint("Angle", 0, Q("144 deg")),
    Sketcher.Constraint("Angle", 3, Q("108 deg")),
    Sketcher.Constraint("DistanceX", -1, 1, 1, 3, Q("38.832816 mm")),
    Sketcher.Constraint("DistanceY", -1, 1, 1, 3, Q("28.213692 mm")),
])

# Sketch on XY plane
sketch18 = doc.addObject("Sketcher::SketchObject", "Sketch017")
body.addObject(sketch18)
sketch18.AttachmentSupport = (doc.XY_Plane, [""])
sketch18.MapMode = "FlatFace"
sketch18.AttachmentOffset = App.Placement(V(0, 0, -40), App.Rotation())
sketch18.addGeometry([
    Part.ArcOfCircle(Part.Circle(V(24.3, 17.6, 0), V(0, 0, 1), 2), math.radians(0), math.radians(144)),
    Part.LineSegment(V(22.7, 18.8, 0), V(24.3, 17.6, 0)),
    Part.LineSegment(V(24.3, 17.6, 0), V(24.9, 15.7, 0)),
    Part.ArcOfCircle(Part.Circle(V(24.3, 17.6, 0), V(0, 0, 1), 2), math.radians(-72), math.radians(0)),
], False)
sketch18.addConstraint([
    Sketcher.Constraint("Coincident", 0, 2, 1, 1),
    Sketcher.Constraint("Coincident", 1, 2, 2, 1),
    Sketcher.Constraint("Coincident", 2, 2, 3, 1),
    Sketcher.Constraint("Tangent", 3, 2, 0, 1),
    Sketcher.Constraint("Coincident", 1, 2, 0, 3),
    Sketcher.Constraint("Equal", 0, 3),
    Sketcher.Constraint("Horizontal", 1, 2, 3, 2),
    Sketcher.Constraint("Radius", 0, Q("2 mm")),
    Sketcher.Constraint("Angle", 1, Q("-36 deg")),
    Sketcher.Constraint("Angle", 2, Q("-72 deg")),
    Sketcher.Constraint("DistanceX", -1, 1, 0, 3, Q("24.27051 mm")),
    Sketcher.Constraint("DistanceY", -1, 1, 0, 2, Q("18.809128 mm")),
])

additiveloft7 = doc.addObject("PartDesign::AdditiveLoft", "AdditiveLoft006")
body.addObject(additiveloft7)
additiveloft7.Profile = sketch17
additiveloft7.Sections = [sketch18]

# Sketch on XY plane
sketch19 = doc.addObject("Sketcher::SketchObject", "Sketch018")
body.addObject(sketch19)
sketch19.AttachmentSupport = (doc.XY_Plane, [""])
sketch19.MapMode = "FlatFace"
sketch19.AttachmentOffset = App.Placement(V(0, 0, -40), App.Rotation())
sketch19.addGeometry([
    Part.ArcOfCircle(Part.Circle(V(9.3, 28.5, 0), V(0, 0, 1), 2), math.radians(0), math.radians(180)),
    Part.LineSegment(V(7.3, 28.5, 0), V(9.3, 28.5, 0)),
    Part.LineSegment(V(9.3, 28.5, 0), V(10.9, 27.4, 0)),
    Part.ArcOfCircle(Part.Circle(V(9.3, 28.5, 0), V(0, 0, 1), 2), math.radians(-36), math.radians(0)),
], False)
sketch19.addConstraint([
    Sketcher.Constraint("Coincident", 0, 2, 1, 1),
    Sketcher.Constraint("Coincident", 1, 2, 2, 1),
    Sketcher.Constraint("Coincident", 2, 2, 3, 1),
    Sketcher.Constraint("Tangent", 3, 2, 0, 1),
    Sketcher.Constraint("Horizontal", 1),
    Sketcher.Constraint("Coincident", 1, 2, 0, 3),
    Sketcher.Constraint("Equal", 0, 3),
    Sketcher.Constraint("Horizontal", 1, 2, 3, 2),
    Sketcher.Constraint("Radius", 0, Q("2 mm")),
    Sketcher.Constraint("Angle", 2, Q("-36 deg")),
    Sketcher.Constraint("DistanceX", -1, 1, 0, 3, Q("9.27051 mm")),
    Sketcher.Constraint("DistanceY", -1, 1, 0, 3, Q("28.531695 mm")),
])

# Sketch on XY plane
sketch20 = doc.addObject("Sketcher::SketchObject", "Sketch019")
body.addObject(sketch20)
sketch20.AttachmentSupport = (doc.XY_Plane, [""])
sketch20.MapMode = "FlatFace"
sketch20.AttachmentOffset = App.Placement(V(0, 0, -3), App.Rotation())
sketch20.addGeometry([
    Part.LineSegment(V(14.8, 45.7, 0), V(11.8, 45.7, 0)),
    Part.ArcOfCircle(Part.Circle(V(14.8, 45.7, 0), V(0, 0, 1), 3), math.radians(0), math.radians(180)),
    Part.ArcOfCircle(Part.Circle(V(14.8, 45.7, 0), V(0, 0, 1), 3), math.radians(-36), math.radians(0)),
    Part.LineSegment(V(17.3, 43.9, 0), V(14.8, 45.7, 0)),
], False)
sketch20.addConstraint([
    Sketcher.Constraint("Coincident", 0, 2, 1, 2),
    Sketcher.Constraint("Tangent", 1, 1, 2, 2),
    Sketcher.Constraint("Coincident", 2, 1, 3, 1),
    Sketcher.Constraint("Coincident", 3, 2, 0, 1),
    Sketcher.Constraint("Horizontal", 0),
    Sketcher.Constraint("Coincident", 3, 2, 1, 3),
    Sketcher.Constraint("Equal", 1, 2),
    Sketcher.Constraint("Horizontal", 0, 2, 1, 1),
    Sketcher.Constraint("Radius", 1, Q("3 mm")),
    Sketcher.Constraint("Angle", 3, Q("144 deg")),
    Sketcher.Constraint("DistanceX", -1, 1, 1, 3, Q("14.832816 mm")),
    Sketcher.Constraint("DistanceY", -1, 1, 1, 3, Q("45.650713 mm")),
])

additiveloft8 = doc.addObject("PartDesign::AdditiveLoft", "AdditiveLoft007")
body.addObject(additiveloft8)
additiveloft8.Profile = sketch19
additiveloft8.Sections = [sketch20]

# Sketch on XY plane
sketch21 = doc.addObject("Sketcher::SketchObject", "Sketch020")
body.addObject(sketch21)
sketch21.AttachmentSupport = (doc.XY_Plane, [""])
sketch21.MapMode = "FlatFace"
sketch21.AttachmentOffset = App.Placement(V(0, 0, -3), App.Rotation())
sketch21.addGeometry([
    Part.LineSegment(V(-14.8, 45.7, 0), V(-17.3, 43.9, 0)),
    Part.ArcOfCircle(Part.Circle(V(-14.8, 45.7, 0), V(0, 0, 1), 3), math.radians(0), math.radians(216)),
    Part.LineSegment(V(-11.8, 45.7, 0), V(-14.8, 45.7, 0)),
], False)
sketch21.addConstraint([
    Sketcher.Constraint("Coincident", 0, 2, 1, 2),
    Sketcher.Constraint("Coincident", 1, 1, 2, 1),
    Sketcher.Constraint("Coincident", 2, 2, 0, 1),
    Sketcher.Constraint("Horizontal", 2),
    Sketcher.Constraint("Coincident", 2, 2, 1, 3),
    Sketcher.Constraint("Radius", 1, Q("3 mm")),
    Sketcher.Constraint("Angle", 0, Q("-144 deg")),
    Sketcher.Constraint("DistanceX", 1, 3, -1, 1, Q("14.832816 mm")),
    Sketcher.Constraint("DistanceY", -1, 1, 1, 3, Q("45.650713 mm")),
])

# Sketch on XY plane
sketch22 = doc.addObject("Sketcher::SketchObject", "Sketch021")
body.addObject(sketch22)
sketch22.AttachmentSupport = (doc.XY_Plane, [""])
sketch22.MapMode = "FlatFace"
sketch22.AttachmentOffset = App.Placement(V(0, 0, -40), App.Rotation())
sketch22.addGeometry([
    Part.ArcOfCircle(Part.Circle(V(-9.3, 28.5, 0), V(0, 0, 1), 2), math.radians(0), math.radians(216)),
    Part.LineSegment(V(-10.9, 27.4, 0), V(-9.3, 28.5, 0)),
    Part.LineSegment(V(-9.3, 28.5, 0), V(-7.3, 28.5, 0)),
], False)
sketch22.addConstraint([
    Sketcher.Constraint("Coincident", 0, 2, 1, 1),
    Sketcher.Constraint("Coincident", 1, 2, 2, 1),
    Sketcher.Constraint("Coincident", 2, 2, 0, 1),
    Sketcher.Constraint("Horizontal", 2),
    Sketcher.Constraint("Coincident", 1, 2, 0, 3),
    Sketcher.Constraint("Radius", 0, Q("2 mm")),
    Sketcher.Constraint("Angle", 1, Q("36 deg")),
    Sketcher.Constraint("DistanceX", 0, 3, -1, 1, Q("9.27051 mm")),
    Sketcher.Constraint("DistanceY", -1, 1, 0, 3, Q("28.531695 mm")),
])

additiveloft9 = doc.addObject("PartDesign::AdditiveLoft", "AdditiveLoft008")
body.addObject(additiveloft9)
additiveloft9.Profile = sketch21
additiveloft9.Sections = [sketch22]

# Sketch on XY plane
sketch23 = doc.addObject("Sketcher::SketchObject", "Sketch022")
body.addObject(sketch23)
sketch23.AttachmentSupport = (doc.XY_Plane, [""])
sketch23.MapMode = "FlatFace"
sketch23.AttachmentOffset = App.Placement(V(0, 0, -40), App.Rotation())
sketch23.addGeometry([
    Part.ArcOfCircle(Part.Circle(V(-24.3, 17.6, 0), V(0, 0, 1), 2), math.radians(36), math.radians(252)),
    Part.LineSegment(V(-24.9, 15.7, 0), V(-24.3, 17.6, 0)),
    Part.LineSegment(V(-24.3, 17.6, 0), V(-22.7, 18.8, 0)),
], False)
sketch23.addConstraint([
    Sketcher.Constraint("Coincident", 0, 2, 1, 1),
    Sketcher.Constraint("Coincident", 1, 2, 2, 1),
    Sketcher.Constraint("Coincident", 2, 2, 0, 1),
    Sketcher.Constraint("Coincident", 1, 2, 0, 3),
    Sketcher.Constraint("Radius", 0, Q("2 mm")),
    Sketcher.Constraint("Angle", 1, Q("72 deg")),
    Sketcher.Constraint("Angle", 2, Q("36 deg")),
    Sketcher.Constraint("DistanceX", 0, 3, -1, 1, Q("24.27051 mm")),
    Sketcher.Constraint("DistanceY", -1, 1, 2, 2, Q("18.809128 mm")),
])

# Sketch on XY plane
sketch24 = doc.addObject("Sketcher::SketchObject", "Sketch023")
body.addObject(sketch24)
sketch24.AttachmentSupport = (doc.XY_Plane, [""])
sketch24.MapMode = "FlatFace"
sketch24.AttachmentOffset = App.Placement(V(0, 0, -3), App.Rotation())
sketch24.addGeometry([
    Part.ArcOfCircle(Part.Circle(V(-38.8, 28.2, 0), V(0, 0, 1), 3), math.radians(36), math.radians(252)),
    Part.LineSegment(V(-36.4, 30, 0), V(-38.8, 28.2, 0)),
    Part.LineSegment(V(-38.8, 28.2, 0), V(-39.8, 25.4, 0)),
], False)
sketch24.addConstraint([
    Sketcher.Constraint("Coincident", 0, 1, 1, 1),
    Sketcher.Constraint("Coincident", 1, 2, 2, 1),
    Sketcher.Constraint("Coincident", 2, 2, 0, 2),
    Sketcher.Constraint("Coincident", 1, 2, 0, 3),
    Sketcher.Constraint("Radius", 0, Q("3 mm")),
    Sketcher.Constraint("Angle", 1, Q("-144 deg")),
    Sketcher.Constraint("Angle", 2, Q("-108 deg")),
    Sketcher.Constraint("DistanceX", 0, 3, -1, 1, Q("38.832816 mm")),
    Sketcher.Constraint("DistanceY", -1, 1, 0, 3, Q("28.213692 mm")),
])

additiveloft10 = doc.addObject("PartDesign::AdditiveLoft", "AdditiveLoft009")
body.addObject(additiveloft10)
additiveloft10.Profile = sketch23
additiveloft10.Sections = [sketch24]

doc.recompute()
